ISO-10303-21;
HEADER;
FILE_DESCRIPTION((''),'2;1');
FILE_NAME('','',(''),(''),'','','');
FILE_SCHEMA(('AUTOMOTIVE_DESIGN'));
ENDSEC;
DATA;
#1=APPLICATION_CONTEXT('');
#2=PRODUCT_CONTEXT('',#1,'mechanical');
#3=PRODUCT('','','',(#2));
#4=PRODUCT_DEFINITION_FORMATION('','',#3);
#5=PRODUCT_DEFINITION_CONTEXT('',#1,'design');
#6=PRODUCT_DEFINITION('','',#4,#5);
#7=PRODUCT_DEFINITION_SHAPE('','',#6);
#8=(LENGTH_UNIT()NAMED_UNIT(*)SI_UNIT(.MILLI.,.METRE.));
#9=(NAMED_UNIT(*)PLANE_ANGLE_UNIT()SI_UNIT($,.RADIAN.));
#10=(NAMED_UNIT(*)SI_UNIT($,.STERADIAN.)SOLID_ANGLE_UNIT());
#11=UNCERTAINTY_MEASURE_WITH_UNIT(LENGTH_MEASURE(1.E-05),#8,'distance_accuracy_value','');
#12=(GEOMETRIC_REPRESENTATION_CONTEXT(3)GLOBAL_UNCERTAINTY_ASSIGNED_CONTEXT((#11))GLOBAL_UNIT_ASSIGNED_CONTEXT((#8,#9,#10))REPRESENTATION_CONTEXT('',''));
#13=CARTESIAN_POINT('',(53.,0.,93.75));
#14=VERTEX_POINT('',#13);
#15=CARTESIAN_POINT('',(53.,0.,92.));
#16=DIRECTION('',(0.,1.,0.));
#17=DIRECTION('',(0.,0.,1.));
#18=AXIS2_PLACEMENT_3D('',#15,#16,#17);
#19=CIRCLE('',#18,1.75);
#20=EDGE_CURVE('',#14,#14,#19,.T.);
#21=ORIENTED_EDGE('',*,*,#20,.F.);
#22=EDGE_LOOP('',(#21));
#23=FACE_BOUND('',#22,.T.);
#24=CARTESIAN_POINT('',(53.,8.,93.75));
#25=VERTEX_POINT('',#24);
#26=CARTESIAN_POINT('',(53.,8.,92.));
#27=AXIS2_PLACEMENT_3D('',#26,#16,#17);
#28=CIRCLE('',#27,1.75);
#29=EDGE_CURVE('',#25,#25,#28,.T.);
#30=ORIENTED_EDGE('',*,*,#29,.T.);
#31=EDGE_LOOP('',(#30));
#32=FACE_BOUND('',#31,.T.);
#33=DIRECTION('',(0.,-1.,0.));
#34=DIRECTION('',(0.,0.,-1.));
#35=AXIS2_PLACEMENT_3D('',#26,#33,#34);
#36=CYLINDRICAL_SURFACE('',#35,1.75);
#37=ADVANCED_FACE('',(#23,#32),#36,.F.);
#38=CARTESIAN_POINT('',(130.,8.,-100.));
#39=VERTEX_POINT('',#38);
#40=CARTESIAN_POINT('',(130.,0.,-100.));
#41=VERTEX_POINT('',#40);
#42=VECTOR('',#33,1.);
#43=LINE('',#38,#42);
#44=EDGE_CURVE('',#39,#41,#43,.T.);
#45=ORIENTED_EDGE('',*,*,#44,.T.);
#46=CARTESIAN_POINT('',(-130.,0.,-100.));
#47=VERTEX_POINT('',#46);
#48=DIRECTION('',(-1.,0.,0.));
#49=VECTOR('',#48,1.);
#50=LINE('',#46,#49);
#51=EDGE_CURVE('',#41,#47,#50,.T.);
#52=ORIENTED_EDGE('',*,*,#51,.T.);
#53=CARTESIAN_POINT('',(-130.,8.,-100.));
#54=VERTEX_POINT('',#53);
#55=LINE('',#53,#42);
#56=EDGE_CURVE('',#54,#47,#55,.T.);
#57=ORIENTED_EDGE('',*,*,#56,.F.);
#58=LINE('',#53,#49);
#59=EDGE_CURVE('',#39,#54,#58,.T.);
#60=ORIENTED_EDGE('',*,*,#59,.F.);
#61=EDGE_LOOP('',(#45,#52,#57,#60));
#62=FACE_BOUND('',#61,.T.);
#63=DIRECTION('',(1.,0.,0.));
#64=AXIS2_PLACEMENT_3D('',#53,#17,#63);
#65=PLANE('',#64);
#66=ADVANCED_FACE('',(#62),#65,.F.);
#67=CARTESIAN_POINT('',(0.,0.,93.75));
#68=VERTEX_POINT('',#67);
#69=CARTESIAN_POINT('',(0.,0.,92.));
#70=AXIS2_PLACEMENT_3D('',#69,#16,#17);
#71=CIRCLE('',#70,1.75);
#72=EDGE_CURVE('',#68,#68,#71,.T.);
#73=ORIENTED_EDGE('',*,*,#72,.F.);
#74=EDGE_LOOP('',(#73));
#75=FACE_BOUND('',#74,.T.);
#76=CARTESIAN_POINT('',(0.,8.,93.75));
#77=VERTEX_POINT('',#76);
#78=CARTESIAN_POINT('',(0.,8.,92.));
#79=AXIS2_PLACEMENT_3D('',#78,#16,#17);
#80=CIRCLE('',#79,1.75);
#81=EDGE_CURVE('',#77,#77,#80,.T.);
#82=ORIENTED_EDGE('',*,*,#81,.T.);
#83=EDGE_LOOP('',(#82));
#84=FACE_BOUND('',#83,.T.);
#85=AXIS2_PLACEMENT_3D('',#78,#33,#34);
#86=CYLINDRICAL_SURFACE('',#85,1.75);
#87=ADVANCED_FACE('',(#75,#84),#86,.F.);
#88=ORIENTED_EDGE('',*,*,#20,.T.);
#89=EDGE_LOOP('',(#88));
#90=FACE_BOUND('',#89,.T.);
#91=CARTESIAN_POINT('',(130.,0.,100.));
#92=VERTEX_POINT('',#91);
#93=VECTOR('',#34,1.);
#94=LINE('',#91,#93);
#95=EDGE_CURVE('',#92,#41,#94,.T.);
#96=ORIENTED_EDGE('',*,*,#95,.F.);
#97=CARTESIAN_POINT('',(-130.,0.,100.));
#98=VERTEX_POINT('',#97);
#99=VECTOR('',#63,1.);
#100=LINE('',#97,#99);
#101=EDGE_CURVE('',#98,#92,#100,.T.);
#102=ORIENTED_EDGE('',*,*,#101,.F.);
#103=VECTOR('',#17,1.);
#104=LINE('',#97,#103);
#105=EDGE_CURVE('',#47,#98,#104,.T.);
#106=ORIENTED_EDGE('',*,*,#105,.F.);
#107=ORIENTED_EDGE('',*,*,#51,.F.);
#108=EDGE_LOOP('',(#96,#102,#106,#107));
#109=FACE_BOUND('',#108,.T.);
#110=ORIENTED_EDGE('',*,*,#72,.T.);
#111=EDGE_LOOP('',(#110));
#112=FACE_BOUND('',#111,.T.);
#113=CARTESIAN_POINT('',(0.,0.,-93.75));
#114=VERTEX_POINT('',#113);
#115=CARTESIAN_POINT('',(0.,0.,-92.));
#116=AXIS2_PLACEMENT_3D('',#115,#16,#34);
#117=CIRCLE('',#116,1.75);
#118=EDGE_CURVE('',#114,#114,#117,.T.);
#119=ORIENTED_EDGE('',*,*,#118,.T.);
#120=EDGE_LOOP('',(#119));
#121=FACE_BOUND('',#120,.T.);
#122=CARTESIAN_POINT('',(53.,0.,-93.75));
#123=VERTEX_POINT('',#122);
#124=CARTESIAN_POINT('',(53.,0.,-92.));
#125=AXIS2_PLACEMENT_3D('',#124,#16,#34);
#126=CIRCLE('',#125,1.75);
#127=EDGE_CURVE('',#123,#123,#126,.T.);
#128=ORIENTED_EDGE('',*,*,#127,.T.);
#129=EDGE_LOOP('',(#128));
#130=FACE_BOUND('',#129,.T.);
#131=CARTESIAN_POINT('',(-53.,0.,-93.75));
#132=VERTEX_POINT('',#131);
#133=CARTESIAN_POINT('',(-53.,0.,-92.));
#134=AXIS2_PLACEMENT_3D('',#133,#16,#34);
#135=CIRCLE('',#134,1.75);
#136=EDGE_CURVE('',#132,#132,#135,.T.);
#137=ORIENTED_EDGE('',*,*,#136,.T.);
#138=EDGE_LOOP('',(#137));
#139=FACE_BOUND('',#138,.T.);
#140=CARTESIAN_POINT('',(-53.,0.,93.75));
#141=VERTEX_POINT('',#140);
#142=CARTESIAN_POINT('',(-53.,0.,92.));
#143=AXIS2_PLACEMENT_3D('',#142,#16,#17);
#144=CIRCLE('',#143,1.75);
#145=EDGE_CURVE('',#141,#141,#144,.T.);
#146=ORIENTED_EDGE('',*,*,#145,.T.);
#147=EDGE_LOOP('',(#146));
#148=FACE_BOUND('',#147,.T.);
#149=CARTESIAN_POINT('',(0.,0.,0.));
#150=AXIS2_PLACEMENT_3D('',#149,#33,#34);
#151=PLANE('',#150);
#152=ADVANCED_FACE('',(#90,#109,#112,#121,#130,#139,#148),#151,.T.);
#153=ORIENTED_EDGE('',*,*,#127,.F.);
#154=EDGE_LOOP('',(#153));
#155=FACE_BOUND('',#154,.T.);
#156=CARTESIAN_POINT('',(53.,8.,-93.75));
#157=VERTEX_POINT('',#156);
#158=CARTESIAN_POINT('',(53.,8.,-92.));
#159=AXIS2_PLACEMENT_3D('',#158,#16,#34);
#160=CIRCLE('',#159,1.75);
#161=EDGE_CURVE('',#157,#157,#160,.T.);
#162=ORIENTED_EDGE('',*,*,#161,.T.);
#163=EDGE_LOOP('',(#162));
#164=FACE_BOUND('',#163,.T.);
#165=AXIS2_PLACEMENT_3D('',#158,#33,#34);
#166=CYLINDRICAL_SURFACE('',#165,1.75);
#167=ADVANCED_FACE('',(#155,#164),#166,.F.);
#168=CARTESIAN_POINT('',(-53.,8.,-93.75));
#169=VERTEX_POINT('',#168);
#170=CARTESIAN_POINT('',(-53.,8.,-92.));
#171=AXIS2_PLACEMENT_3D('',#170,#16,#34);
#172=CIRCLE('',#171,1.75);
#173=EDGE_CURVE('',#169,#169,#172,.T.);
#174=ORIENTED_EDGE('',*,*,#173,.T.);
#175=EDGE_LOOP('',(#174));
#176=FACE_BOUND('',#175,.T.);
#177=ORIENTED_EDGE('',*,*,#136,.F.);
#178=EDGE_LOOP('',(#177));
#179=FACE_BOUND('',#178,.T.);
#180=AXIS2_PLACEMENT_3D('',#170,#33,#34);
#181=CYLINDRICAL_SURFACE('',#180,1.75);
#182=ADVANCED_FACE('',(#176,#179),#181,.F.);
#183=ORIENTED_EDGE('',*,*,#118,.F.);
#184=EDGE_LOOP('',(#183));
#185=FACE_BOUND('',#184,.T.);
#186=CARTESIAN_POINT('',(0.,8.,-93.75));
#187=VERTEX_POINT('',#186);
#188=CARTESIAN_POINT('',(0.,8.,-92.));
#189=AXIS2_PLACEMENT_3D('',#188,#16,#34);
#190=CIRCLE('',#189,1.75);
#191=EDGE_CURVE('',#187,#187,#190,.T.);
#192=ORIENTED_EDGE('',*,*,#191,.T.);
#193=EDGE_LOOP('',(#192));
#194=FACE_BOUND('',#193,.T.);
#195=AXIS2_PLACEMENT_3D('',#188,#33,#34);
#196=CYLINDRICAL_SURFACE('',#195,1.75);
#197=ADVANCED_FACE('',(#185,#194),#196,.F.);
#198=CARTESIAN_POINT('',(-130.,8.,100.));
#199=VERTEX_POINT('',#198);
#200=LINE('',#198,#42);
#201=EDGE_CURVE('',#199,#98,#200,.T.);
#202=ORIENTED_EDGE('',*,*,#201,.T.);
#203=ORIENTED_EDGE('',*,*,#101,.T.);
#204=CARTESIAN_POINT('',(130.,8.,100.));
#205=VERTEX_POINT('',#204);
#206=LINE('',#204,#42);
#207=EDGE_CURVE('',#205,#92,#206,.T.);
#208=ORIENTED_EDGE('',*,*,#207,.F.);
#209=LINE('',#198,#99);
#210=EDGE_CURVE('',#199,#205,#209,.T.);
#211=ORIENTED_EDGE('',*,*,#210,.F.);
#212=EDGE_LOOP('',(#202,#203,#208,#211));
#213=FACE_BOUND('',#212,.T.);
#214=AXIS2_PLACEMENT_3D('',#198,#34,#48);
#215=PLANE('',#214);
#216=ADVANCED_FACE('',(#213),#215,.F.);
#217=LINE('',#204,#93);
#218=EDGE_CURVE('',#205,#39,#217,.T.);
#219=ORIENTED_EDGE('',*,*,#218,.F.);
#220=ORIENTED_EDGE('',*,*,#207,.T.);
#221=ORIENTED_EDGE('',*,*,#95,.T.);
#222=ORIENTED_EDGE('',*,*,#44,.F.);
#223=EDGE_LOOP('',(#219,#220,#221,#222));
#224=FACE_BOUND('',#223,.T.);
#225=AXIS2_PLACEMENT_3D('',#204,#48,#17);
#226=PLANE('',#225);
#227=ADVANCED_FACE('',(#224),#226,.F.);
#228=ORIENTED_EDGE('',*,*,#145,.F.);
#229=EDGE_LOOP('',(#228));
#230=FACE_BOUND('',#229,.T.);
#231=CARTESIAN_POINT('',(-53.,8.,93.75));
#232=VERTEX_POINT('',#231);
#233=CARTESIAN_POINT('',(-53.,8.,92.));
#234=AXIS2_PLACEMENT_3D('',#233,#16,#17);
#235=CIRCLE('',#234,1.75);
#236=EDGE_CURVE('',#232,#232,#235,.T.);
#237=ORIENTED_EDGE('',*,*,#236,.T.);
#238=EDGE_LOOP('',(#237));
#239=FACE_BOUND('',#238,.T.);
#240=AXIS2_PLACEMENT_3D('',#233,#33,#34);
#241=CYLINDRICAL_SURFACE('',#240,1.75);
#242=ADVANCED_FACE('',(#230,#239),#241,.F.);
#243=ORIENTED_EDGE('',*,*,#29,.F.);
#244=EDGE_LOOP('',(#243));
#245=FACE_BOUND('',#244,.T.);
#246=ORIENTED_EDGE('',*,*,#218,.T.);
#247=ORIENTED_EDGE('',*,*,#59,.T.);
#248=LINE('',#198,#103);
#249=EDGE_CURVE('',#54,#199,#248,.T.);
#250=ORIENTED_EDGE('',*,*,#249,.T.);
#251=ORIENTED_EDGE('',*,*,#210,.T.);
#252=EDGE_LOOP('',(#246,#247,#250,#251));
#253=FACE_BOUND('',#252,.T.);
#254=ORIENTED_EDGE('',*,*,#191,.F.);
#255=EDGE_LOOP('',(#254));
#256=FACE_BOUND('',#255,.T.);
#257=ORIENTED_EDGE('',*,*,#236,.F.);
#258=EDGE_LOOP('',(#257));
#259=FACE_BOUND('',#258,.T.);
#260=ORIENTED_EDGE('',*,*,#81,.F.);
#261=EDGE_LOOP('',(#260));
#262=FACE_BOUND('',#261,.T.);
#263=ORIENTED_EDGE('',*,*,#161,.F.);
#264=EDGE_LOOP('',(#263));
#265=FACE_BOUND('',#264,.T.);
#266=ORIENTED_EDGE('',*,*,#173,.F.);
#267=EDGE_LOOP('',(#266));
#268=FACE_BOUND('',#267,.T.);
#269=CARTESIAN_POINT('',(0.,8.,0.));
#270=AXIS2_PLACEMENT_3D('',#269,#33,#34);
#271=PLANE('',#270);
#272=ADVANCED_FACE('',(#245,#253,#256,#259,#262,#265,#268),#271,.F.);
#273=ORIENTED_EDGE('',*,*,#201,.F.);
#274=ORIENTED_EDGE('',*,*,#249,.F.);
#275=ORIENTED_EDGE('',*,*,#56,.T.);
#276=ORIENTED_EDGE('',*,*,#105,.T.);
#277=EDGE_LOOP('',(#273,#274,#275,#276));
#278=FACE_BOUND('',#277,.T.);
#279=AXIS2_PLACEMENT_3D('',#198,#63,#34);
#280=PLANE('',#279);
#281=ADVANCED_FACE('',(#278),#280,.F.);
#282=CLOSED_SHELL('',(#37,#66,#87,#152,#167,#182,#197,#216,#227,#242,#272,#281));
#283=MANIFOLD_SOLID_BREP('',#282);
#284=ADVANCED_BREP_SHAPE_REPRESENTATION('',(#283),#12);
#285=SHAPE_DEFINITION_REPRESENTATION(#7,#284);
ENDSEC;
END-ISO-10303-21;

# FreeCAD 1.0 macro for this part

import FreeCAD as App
import Part
import Sketcher

V = App.Vector
Q = App.Units.Quantity


def add_polygon(sketch, points):
    """Adds a closed chain of lines whose ends are joined by coincident constraints."""
    first, n = sketch.GeometryCount, len(points)
    for a, b in zip(points, points[1:] + points[:1]):
        sketch.addGeometry(Part.LineSegment(App.Vector(*a, 0), App.Vector(*b, 0)), False)
    for i in range(n):
        sketch.addConstraint(Sketcher.Constraint("Coincident", first + i, 2, first + (i + 1) % n, 1))

doc = App.newDocument("Part")
params = doc.addObject("Spreadsheet::Sheet", "Params")
for row, (alias, value) in enumerate([
    ("sketch1_diameter", "3.5 mm"),
    ("sketch1_width", "260 mm"),
    ("sketch1_height", "200 mm"),
    ("pad1_length", "8 mm"),
], start=1):
    params.set(f"A{row}", alias)
    params.set(f"B{row}", "=" + value)
    params.setAlias(f"B{row}", alias)

body = doc.addObject("PartDesign::Body", "Body")

# Sketch on XZ plane
sketch1 = doc.addObject("Sketcher::SketchObject", "Sketch")
body.addObject(sketch1)
sketch1.AttachmentSupport = (doc.XZ_Plane, [""])
sketch1.MapMode = "FlatFace"
add_polygon(sketch1, [(-130, -100), (-130, 100), (130, 100), (130, -100)])  # lines 0-3
sketch1.addGeometry(Part.Circle(V(-53, 92, 0), V(0, 0, 1), 1.8), False)  # 4
sketch1.addGeometry(Part.Circle(V(0, 92, 0), V(0, 0, 1), 1.8), False)  # 5
sketch1.addGeometry(Part.Circle(V(53, 92, 0), V(0, 0, 1), 1.8), False)  # 6
sketch1.addGeometry(Part.Circle(V(-53, -92, 0), V(0, 0, 1), 1.8), False)  # 7
sketch1.addGeometry(Part.Circle(V(0, -92, 0), V(0, 0, 1), 1.8), False)  # 8
sketch1.addGeometry(Part.Circle(V(53, -92, 0), V(0, 0, 1), 1.8), False)  # 9
sketch1.addConstraint(Sketcher.Constraint("Vertical", 0))
sketch1.addConstraint(Sketcher.Constraint("Horizontal", 1))
sketch1.addConstraint(Sketcher.Constraint("Vertical", 2))
sketch1.addConstraint(Sketcher.Constraint("Horizontal", 3))
sketch1.addConstraint(Sketcher.Constraint("Equal", 4, 5))
sketch1.addConstraint(Sketcher.Constraint("Equal", 5, 6))
sketch1.addConstraint(Sketcher.Constraint("Equal", 6, 7))
sketch1.addConstraint(Sketcher.Constraint("Equal", 7, 8))
sketch1.addConstraint(Sketcher.Constraint("Equal", 8, 9))
sketch1.addConstraint(Sketcher.Constraint("Symmetric", 6, 3, 7, 3, -1, 1))
sketch1.addConstraint(Sketcher.Constraint("Symmetric", 5, 3, 8, 3, -1, 1))
sketch1.addConstraint(Sketcher.Constraint("Symmetric", 4, 3, 9, 3, -1, 1))
sketch1.addConstraint(Sketcher.Constraint("Symmetric", 0, 2, 2, 2, -1, 1))
sketch1.addConstraint(Sketcher.Constraint("Symmetric", 4, 3, 6, 3, -2))
sketch1.addConstraint(Sketcher.Constraint("PointOnObject", 5, 3, -2))
sketch1.addConstraint(Sketcher.Constraint("Horizontal", 4, 3, 5, 3))
sketch1.addConstraint(Sketcher.Constraint("Diameter", 4, Q("3.5 mm")))
sketch1.addConstraint(Sketcher.Constraint("DistanceX", 1, 1, 1, 2, Q("260 mm")))
sketch1.addConstraint(Sketcher.Constraint("DistanceY", 0, 1, 0, 2, Q("200 mm")))
sketch1.addConstraint(Sketcher.Constraint("DistanceX", 4, 3, -1, 1, Q("53 mm")))
sketch1.addConstraint(Sketcher.Constraint("DistanceY", -1, 1, 4, 3, Q("92 mm")))
sketch1.setExpression("Constraints[20]", "Params.sketch1_diameter")
sketch1.setExpression("Constraints[21]", "Params.sketch1_width")
sketch1.setExpression("Constraints[22]", "Params.sketch1_height")
pad1 = doc.addObject("PartDesign::Pad", "Pad")
body.addObject(pad1)
pad1.Profile = sketch1
pad1.setExpression("Length", "Params.pad1_length")
pad1.Reversed = True

doc.recompute()
